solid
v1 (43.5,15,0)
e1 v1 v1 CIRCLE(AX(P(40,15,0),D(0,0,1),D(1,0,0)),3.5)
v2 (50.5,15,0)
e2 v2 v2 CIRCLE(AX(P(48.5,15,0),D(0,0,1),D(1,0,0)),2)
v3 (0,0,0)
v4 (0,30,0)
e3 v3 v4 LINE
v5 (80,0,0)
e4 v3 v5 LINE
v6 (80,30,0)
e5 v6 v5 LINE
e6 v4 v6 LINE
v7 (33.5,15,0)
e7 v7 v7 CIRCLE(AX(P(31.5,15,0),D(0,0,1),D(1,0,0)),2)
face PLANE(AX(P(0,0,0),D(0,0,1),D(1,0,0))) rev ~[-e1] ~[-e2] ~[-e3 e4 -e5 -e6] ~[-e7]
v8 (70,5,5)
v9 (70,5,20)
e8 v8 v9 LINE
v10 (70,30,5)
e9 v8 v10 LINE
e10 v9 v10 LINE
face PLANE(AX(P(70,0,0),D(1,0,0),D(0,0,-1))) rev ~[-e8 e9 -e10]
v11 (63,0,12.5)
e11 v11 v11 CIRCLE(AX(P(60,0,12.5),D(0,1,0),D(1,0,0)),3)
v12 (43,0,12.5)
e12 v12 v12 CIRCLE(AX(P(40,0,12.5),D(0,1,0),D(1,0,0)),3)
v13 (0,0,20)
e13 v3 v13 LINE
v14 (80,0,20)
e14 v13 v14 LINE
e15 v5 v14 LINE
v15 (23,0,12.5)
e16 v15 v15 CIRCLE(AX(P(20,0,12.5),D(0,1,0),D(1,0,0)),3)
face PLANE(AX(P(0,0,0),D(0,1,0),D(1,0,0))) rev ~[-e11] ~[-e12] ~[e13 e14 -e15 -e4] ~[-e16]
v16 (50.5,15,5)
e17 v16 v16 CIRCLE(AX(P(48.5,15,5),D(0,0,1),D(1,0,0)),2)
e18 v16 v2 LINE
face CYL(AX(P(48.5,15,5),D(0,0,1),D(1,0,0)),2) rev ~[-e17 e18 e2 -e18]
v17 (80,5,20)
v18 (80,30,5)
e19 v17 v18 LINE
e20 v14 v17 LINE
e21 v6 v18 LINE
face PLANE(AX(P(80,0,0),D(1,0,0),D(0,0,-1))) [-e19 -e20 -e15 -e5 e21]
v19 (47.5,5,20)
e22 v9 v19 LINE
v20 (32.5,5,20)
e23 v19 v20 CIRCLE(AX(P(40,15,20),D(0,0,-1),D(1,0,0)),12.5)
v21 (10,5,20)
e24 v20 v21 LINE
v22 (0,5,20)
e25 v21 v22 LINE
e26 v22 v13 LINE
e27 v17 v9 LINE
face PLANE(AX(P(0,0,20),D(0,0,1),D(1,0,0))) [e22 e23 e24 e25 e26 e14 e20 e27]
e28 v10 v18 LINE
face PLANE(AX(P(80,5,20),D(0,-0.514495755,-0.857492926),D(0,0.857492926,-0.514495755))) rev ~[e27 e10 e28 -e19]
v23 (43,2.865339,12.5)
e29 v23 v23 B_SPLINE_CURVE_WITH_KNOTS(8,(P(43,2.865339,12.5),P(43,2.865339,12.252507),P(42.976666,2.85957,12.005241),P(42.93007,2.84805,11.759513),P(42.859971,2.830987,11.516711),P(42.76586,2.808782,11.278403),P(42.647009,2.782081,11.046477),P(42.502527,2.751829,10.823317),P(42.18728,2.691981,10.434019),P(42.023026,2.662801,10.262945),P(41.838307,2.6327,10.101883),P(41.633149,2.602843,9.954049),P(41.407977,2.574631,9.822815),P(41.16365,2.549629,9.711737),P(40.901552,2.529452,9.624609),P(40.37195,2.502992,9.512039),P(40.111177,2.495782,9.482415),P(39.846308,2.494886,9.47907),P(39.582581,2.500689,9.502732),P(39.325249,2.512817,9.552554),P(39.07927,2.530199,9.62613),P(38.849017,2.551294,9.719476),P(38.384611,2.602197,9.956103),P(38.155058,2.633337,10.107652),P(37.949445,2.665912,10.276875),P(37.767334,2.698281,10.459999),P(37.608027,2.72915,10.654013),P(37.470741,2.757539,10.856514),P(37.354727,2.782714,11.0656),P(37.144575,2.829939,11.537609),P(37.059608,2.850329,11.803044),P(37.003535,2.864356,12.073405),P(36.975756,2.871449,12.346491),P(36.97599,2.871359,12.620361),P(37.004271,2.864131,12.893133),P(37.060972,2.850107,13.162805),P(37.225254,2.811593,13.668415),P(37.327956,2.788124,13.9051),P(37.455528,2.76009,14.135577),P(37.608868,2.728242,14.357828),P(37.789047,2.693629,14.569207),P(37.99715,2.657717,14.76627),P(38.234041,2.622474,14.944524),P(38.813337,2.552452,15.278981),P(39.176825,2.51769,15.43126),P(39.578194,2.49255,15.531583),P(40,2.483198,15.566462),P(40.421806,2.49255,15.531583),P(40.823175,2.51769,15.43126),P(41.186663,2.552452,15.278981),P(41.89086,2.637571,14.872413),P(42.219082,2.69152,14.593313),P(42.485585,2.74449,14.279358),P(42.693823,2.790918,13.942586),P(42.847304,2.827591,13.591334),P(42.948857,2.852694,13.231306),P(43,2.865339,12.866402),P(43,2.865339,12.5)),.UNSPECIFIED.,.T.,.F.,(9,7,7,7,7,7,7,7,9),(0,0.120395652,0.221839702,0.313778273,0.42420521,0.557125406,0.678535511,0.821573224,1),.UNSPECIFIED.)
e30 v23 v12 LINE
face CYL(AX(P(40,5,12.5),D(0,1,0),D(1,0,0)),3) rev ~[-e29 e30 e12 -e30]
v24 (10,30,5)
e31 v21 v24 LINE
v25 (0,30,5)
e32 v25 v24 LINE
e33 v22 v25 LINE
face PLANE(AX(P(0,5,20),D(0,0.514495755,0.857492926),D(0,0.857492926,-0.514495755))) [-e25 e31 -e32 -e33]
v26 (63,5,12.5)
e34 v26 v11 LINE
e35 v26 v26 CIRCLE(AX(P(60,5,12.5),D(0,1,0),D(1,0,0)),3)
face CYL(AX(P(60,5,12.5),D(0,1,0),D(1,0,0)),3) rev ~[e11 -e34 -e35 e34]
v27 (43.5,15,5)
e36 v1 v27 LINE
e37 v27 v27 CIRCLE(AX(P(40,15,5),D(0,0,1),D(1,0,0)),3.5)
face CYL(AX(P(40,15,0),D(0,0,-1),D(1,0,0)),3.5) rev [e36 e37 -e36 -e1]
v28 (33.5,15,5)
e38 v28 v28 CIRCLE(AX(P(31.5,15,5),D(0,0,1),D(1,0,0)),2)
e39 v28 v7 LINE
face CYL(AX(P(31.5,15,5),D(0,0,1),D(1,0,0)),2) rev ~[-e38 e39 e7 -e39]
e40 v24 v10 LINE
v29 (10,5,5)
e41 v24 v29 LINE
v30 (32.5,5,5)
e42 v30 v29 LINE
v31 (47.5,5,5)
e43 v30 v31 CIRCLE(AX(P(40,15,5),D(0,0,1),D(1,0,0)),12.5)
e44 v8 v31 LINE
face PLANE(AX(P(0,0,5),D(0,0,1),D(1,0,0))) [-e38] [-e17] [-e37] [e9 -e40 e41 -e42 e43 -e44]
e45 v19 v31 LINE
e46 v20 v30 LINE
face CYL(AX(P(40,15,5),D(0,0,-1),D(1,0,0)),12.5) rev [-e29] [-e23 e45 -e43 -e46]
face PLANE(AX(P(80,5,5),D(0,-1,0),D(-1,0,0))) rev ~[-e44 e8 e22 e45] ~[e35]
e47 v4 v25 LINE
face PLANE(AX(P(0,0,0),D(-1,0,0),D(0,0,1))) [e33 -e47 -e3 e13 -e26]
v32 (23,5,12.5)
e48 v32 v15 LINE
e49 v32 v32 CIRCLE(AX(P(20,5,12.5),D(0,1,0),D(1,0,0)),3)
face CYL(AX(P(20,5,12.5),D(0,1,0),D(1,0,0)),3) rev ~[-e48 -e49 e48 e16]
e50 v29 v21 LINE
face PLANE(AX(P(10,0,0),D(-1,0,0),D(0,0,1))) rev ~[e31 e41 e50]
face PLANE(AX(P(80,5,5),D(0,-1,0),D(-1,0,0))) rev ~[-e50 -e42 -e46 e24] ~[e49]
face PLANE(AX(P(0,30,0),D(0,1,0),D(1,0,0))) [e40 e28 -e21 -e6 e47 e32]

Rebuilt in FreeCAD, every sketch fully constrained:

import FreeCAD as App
import Part
import Sketcher

V = App.Vector

doc = App.newDocument("Part")
params = doc.addObject("Spreadsheet::Sheet", "Params")
for row, (alias, value) in enumerate([
    ("sketch1_diameter", "7 mm"),
    ("sketch1_width", "80 mm"),
    ("sketch1_height", "30 mm"),
    ("pad1_length", "5 mm"),
    ("sketch2_height", "5 mm"),
    ("sketch2_width", "80 mm"),
    ("pad2_length", "15 mm"),
    ("sketch3_diameter", "4 mm"),
    ("sketch4_diameter", "6 mm"),
    ("sketch5_diameter", "25 mm"),
    ("sketch5_diameter2", "7 mm"),
    ("sketch6_width", "25 mm"),
    ("sketch6_height", "15 mm"),
    ("pad3_length", "10 mm"),
    ("sketch7_width", "25 mm"),
    ("sketch7_height", "15 mm"),
    ("pad4_length", "10 mm"),
], start=1):
    params.set(f"A{row}", alias)
    params.set(f"B{row}", "=" + value)
    params.setAlias(f"B{row}", alias)

body = doc.addObject("PartDesign::Body", "Body")

# Sketch on XY plane
sketch1 = body.newObject("Sketcher::SketchObject", "Sketch")
sketch1.AttachmentSupport = (doc.getObject("XY_Plane"), [""])
sketch1.MapMode = "FlatFace"
sketch1.addGeometry([
    Part.LineSegment(V(0, 30, 0), V(0, 0, 0)),  # 0
    Part.LineSegment(V(0, 0, 0), V(80, 0, 0)),  # 1
    Part.LineSegment(V(80, 0, 0), V(80, 30, 0)),  # 2
    Part.LineSegment(V(80, 30, 0), V(0, 30, 0)),  # 3
    Part.Circle(V(40, 15, 0), V(0, 0, 1), 3.5),  # 4
], False)
sketch1.addConstraint([
    Sketcher.Constraint("Coincident", 0, 2, 1, 1),
    Sketcher.Constraint("Coincident", 1, 2, 2, 1),
    Sketcher.Constraint("Coincident", 2, 2, 3, 1),
    Sketcher.Constraint("Coincident", 3, 2, 0, 1),
    Sketcher.Constraint("Vertical", 0),
    Sketcher.Constraint("Horizontal", 1),
    Sketcher.Constraint("Vertical", 2),
    Sketcher.Constraint("Horizontal", 3),
    Sketcher.Constraint("Coincident", 0, 2, -1, 1),
    Sketcher.Constraint("Diameter", 4, 7.0),
    Sketcher.Constraint("DistanceX", 1, 1, 1, 2, 80.0),
    Sketcher.Constraint("DistanceY", 0, 2, 0, 1, 30.0),
    Sketcher.Constraint("DistanceY", -1, 1, 4, 3, 15.0),
    Sketcher.Constraint("DistanceX", -1, 1, 4, 3, 40.0),
])
sketch1.setExpression("Constraints[9]", "Params.sketch1_diameter")
sketch1.setExpression("Constraints[10]", "Params.sketch1_width")
sketch1.setExpression("Constraints[11]", "Params.sketch1_height")
pad1 = body.newObject("PartDesign::Pad", "Pad")
pad1.Profile = sketch1
pad1.setExpression("Length", "Params.pad1_length")

# Sketch on XY plane
sketch2 = body.newObject("Sketcher::SketchObject", "Sketch001")
sketch2.AttachmentSupport = (doc.getObject("XY_Plane"), [""])
sketch2.MapMode = "FlatFace"
sketch2.AttachmentOffset = App.Placement(V(0, 0, 5), App.Rotation())
sketch2.addGeometry([
    Part.LineSegment(V(0, 5, 0), V(0, 0, 0)),
    Part.LineSegment(V(0, 0, 0), V(80, 0, 0)),
    Part.LineSegment(V(80, 0, 0), V(80, 5, 0)),
    Part.LineSegment(V(80, 5, 0), V(0, 5, 0)),
], False)
sketch2.addConstraint([
    Sketcher.Constraint("Coincident", 0, 2, 1, 1),
    Sketcher.Constraint("Coincident", 1, 2, 2, 1),
    Sketcher.Constraint("Coincident", 2, 2, 3, 1),
    Sketcher.Constraint("Coincident", 3, 2, 0, 1),
    Sketcher.Constraint("Vertical", 0),
    Sketcher.Constraint("Horizontal", 1),
    Sketcher.Constraint("Vertical", 2),
    Sketcher.Constraint("Horizontal", 3),
    Sketcher.Constraint("Coincident", 0, 2, -1, 1),
    Sketcher.Constraint("DistanceY", 0, 2, 0, 1, 5.0),
    Sketcher.Constraint("DistanceX", 1, 1, 1, 2, 80.0),
])
sketch2.setExpression("Constraints[9]", "Params.sketch2_height")
sketch2.setExpression("Constraints[10]", "Params.sketch2_width")
pad2 = body.newObject("PartDesign::Pad", "Pad001")
pad2.Profile = sketch2
pad2.setExpression("Length", "Params.pad2_length")

# Sketch on XY plane
sketch3 = body.newObject("Sketcher::SketchObject", "Sketch002")
sketch3.AttachmentSupport = (doc.getObject("XY_Plane"), [""])
sketch3.MapMode = "FlatFace"
sketch3.AttachmentOffset = App.Placement(V(0, 0, 5), App.Rotation())
sketch3.addGeometry([
    Part.Circle(V(31.5, 15, 0), V(0, 0, 1), 2),
    Part.Circle(V(48.5, 15, 0), V(0, 0, 1), 2),
], False)
sketch3.addConstraint([
    Sketcher.Constraint("Equal", 0, 1),
    Sketcher.Constraint("Horizontal", 0, 3, 1, 3),
    Sketcher.Constraint("Diameter", 0, 4.0),
    Sketcher.Constraint("DistanceX", 0, 3, 1, 3, 17.0),
    Sketcher.Constraint("DistanceY", -1, 1, 0, 3, 15.0),
    Sketcher.Constraint("DistanceX", -1, 1, 0, 3, 31.5),
])
sketch3.setExpression("Constraints[2]", "Params.sketch3_diameter")
pocket1 = body.newObject("PartDesign::Pocket", "Pocket")
pocket1.Profile = sketch3
pocket1.Type = "ThroughAll"

# Sketch on XZ plane
sketch4 = body.newObject("Sketcher::SketchObject", "Sketch003")
sketch4.AttachmentSupport = (doc.getObject("XZ_Plane"), [""])
sketch4.MapMode = "FlatFace"
sketch4.AttachmentOffset = App.Placement(V(0, 0, -5), App.Rotation())
sketch4.addGeometry([
    Part.Circle(V(20, 12.5, 0), V(0, 0, 1), 3),
    Part.Circle(V(40, 12.5, 0), V(0, 0, 1), 3),
    Part.Circle(V(60, 12.5, 0), V(0, 0, 1), 3),
], False)
sketch4.addConstraint([
    Sketcher.Constraint("Equal", 0, 1),
    Sketcher.Constraint("Equal", 1, 2),
    Sketcher.Constraint("Horizontal", 0, 3, 1, 3),
    Sketcher.Constraint("Horizontal", 1, 3, 2, 3),
    Sketcher.Constraint("Diameter", 0, 6.0),
    Sketcher.Constraint("DistanceX", -1, 1, 0, 3, 20.0),
    Sketcher.Constraint("DistanceX", 0, 3, 1, 3, 20.0),
    Sketcher.Constraint("DistanceX", 1, 3, 2, 3, 20.0),
    Sketcher.Constraint("DistanceY", -1, 1, 0, 3, 12.5),
])
sketch4.setExpression("Constraints[4]", "Params.sketch4_diameter")
pocket2 = body.newObject("PartDesign::Pocket", "Pocket001")
pocket2.Profile = sketch4
pocket2.Type = "ThroughAll"
pocket2.Reversed = True

# Sketch on XY plane
sketch5 = body.newObject("Sketcher::SketchObject", "Sketch004")
sketch5.AttachmentSupport = (doc.getObject("XY_Plane"), [""])
sketch5.MapMode = "FlatFace"
sketch5.AttachmentOffset = App.Placement(V(0, 0, 5), App.Rotation())
sketch5.addGeometry([
    Part.Circle(V(40, 15, 0), V(0, 0, 1), 12.5),
    Part.Circle(V(40, 15, 0), V(0, 0, 1), 3.5),
], False)
sketch5.addConstraint([
    Sketcher.Constraint("Coincident", 1, 3, 0, 3),
    Sketcher.Constraint("Diameter", 0, 25.0),
    Sketcher.Constraint("Diameter", 1, 7.0),
    Sketcher.Constraint("DistanceX", -1, 1, 0, 3, 40.0),
    Sketcher.Constraint("DistanceY", -1, 1, 0, 3, 15.0),
])
sketch5.setExpression("Constraints[1]", "Params.sketch5_diameter")
sketch5.setExpression("Constraints[2]", "Params.sketch5_diameter2")
pocket3 = body.newObject("PartDesign::Pocket", "Pocket002")
pocket3.Profile = sketch5
pocket3.Type = "ThroughAll"
pocket3.Reversed = True

# Sketch on YZ plane
sketch6 = body.newObject("Sketcher::SketchObject", "Sketch005")
sketch6.AttachmentSupport = (doc.getObject("YZ_Plane"), [""])
sketch6.MapMode = "FlatFace"
sketch6.AttachmentOffset = App.Placement(V(0, 0, 80), App.Rotation())
sketch6.addGeometry([
    Part.LineSegment(V(5, 20, 0), V(5, 5, 0)),
    Part.LineSegment(V(5, 5, 0), V(30, 5, 0)),
    Part.LineSegment(V(30, 5, 0), V(5, 20, 0)),
], False)
sketch6.addConstraint([
    Sketcher.Constraint("Coincident", 0, 2, 1, 1),
    Sketcher.Constraint("Coincident", 1, 2, 2, 1),
    Sketcher.Constraint("Coincident", 2, 2, 0, 1),
    Sketcher.Constraint("Vertical", 0),
    Sketcher.Constraint("Horizontal", 1),
    Sketcher.Constraint("DistanceX", 1, 1, 1, 2, 25.0),
    Sketcher.Constraint("DistanceY", 0, 2, 0, 1, 15.0),
    Sketcher.Constraint("DistanceX", -1, 1, 0, 2, 5.0),
    Sketcher.Constraint("DistanceY", -1, 1, 0, 2, 5.0),
])
sketch6.setExpression("Constraints[5]", "Params.sketch6_width")
sketch6.setExpression("Constraints[6]", "Params.sketch6_height")
pad3 = body.newObject("PartDesign::Pad", "Pad002")
pad3.Profile = sketch6
pad3.setExpression("Length", "Params.pad3_length")
pad3.Reversed = True

# Sketch on YZ plane
sketch7 = body.newObject("Sketcher::SketchObject", "Sketch006")
sketch7.AttachmentSupport = (doc.getObject("YZ_Plane"), [""])
sketch7.MapMode = "FlatFace"
sketch7.addGeometry([
    Part.LineSegment(V(5, 5, 0), V(5, 20, 0)),
    Part.LineSegment(V(5, 20, 0), V(30, 5, 0)),
    Part.LineSegment(V(30, 5, 0), V(5, 5, 0)),
], False)
sketch7.addConstraint([
    Sketcher.Constraint("Coincident", 0, 2, 1, 1),
    Sketcher.Constraint("Coincident", 1, 2, 2, 1),
    Sketcher.Constraint("Coincident", 2, 2, 0, 1),
    Sketcher.Constraint("Vertical", 0),
    Sketcher.Constraint("Horizontal", 2),
    Sketcher.Constraint("DistanceX", 2, 2, 2, 1, 25.0),
    Sketcher.Constraint("DistanceY", 0, 1, 0, 2, 15.0),
    Sketcher.Constraint("DistanceX", -1, 1, 0, 2, 5.0),
    Sketcher.Constraint("DistanceY", -1, 1, 0, 2, 20.0),
])
sketch7.setExpression("Constraints[5]", "Params.sketch7_width")
sketch7.setExpression("Constraints[6]", "Params.sketch7_height")
pad4 = body.newObject("PartDesign::Pad", "Pad003")
pad4.Profile = sketch7
pad4.setExpression("Length", "Params.pad4_length")

doc.recompute()
